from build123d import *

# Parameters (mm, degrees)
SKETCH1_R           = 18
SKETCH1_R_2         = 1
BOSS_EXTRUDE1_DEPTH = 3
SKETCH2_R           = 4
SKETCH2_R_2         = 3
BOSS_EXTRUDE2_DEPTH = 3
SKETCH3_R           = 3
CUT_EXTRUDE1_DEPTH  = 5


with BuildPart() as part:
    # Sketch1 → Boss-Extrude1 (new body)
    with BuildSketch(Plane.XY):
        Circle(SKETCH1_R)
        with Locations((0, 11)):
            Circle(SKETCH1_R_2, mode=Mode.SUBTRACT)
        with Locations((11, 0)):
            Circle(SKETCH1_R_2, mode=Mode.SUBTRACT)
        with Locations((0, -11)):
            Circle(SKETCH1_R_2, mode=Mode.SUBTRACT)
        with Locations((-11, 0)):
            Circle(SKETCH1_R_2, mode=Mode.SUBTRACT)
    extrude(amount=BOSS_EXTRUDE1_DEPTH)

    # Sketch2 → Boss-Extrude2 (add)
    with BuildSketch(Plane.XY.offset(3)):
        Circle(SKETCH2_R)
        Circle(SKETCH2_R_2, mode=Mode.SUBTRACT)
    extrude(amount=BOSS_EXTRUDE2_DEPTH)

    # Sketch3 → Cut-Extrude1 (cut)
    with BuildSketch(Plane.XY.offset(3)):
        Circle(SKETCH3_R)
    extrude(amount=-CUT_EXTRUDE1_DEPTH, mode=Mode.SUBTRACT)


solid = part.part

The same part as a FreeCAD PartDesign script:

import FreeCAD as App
import Part
import Sketcher
from FreeCAD import Vector
Q = App.Units.Quantity

doc = App.newDocument("Part")
body = doc.addObject("PartDesign::Body", "Body")

sketch1 = body.newObject("Sketcher::SketchObject", "Sketch")
sketch1.AttachmentSupport = (doc.getObject("XY_Plane"), [""])
sketch1.MapMode = "FlatFace"
sketch1.addGeometry([
    Part.Circle(Vector(0, 0, 0), Vector(0, 0, 1), 18),
    Part.Circle(Vector(0, -11, 0), Vector(0, 0, 1), 1),
    Part.Circle(Vector(-11, 0, 0), Vector(0, 0, 1), 1),
    Part.Circle(Vector(11, 0, 0), Vector(0, 0, 1), 1),
    Part.Circle(Vector(0, 11, 0), Vector(0, 0, 1), 1),
], False)
sketch1.addConstraint([
    Sketcher.Constraint("Coincident", 0, 3, -1, 1),
    Sketcher.Constraint("Equal", 1, 2),
    Sketcher.Constraint("Equal", 2, 3),
    Sketcher.Constraint("Equal", 3, 4),
    Sketcher.Constraint("Symmetric", 2, 3, 3, 3, -1, 1),
    Sketcher.Constraint("Symmetric", 1, 3, 4, 3, -1, 1),
    Sketcher.Constraint("PointOnObject", 1, 3, -2),
    Sketcher.Constraint("PointOnObject", 2, 3, -1),
    Sketcher.Constraint("Diameter", 0, Q("36 mm")),
    Sketcher.Constraint("Diameter", 1, Q("2 mm")),
    Sketcher.Constraint("DistanceY", 1, 3, -1, 1, Q("11 mm")),
    Sketcher.Constraint("DistanceX", 2, 3, -1, 1, Q("11 mm")),
])
pad1 = body.newObject("PartDesign::Pad", "Pad")
pad1.Profile = sketch1
pad1.Length = 3

sketch2 = body.newObject("Sketcher::SketchObject", "Sketch001")
sketch2.AttachmentSupport = (doc.getObject("XY_Plane"), [""])
sketch2.MapMode = "FlatFace"
sketch2.AttachmentOffset = App.Placement(Vector(0, 0, 3), App.Rotation())
sketch2.addGeometry([
    Part.Circle(Vector(0, 0, 0), Vector(0, 0, 1), 4),
    Part.Circle(Vector(0, 0, 0), Vector(0, 0, 1), 3),
], False)
sketch2.addConstraint([
    Sketcher.Constraint("Coincident", 0, 3, -1, 1),
    Sketcher.Constraint("Coincident", 1, 3, -1, 1),
    Sketcher.Constraint("Diameter", 0, Q("8 mm")),
    Sketcher.Constraint("Diameter", 1, Q("6 mm")),
])
pad2 = body.newObject("PartDesign::Pad", "Pad001")
pad2.Profile = sketch2
pad2.Length = 3

sketch3 = body.newObject("Sketcher::SketchObject", "Sketch002")
sketch3.AttachmentSupport = (doc.getObject("XY_Plane"), [""])
sketch3.MapMode = "FlatFace"
sketch3.AttachmentOffset = App.Placement(Vector(0, 0, 3), App.Rotation())
sketch3.addGeometry(Part.Circle(Vector(0, 0, 0), Vector(0, 0, 1), 3), False)
sketch3.addConstraint([
    Sketcher.Constraint("Coincident", 0, 3, -1, 1),
    Sketcher.Constraint("Diameter", 0, Q("6 mm")),
])
pocket1 = body.newObject("PartDesign::Pocket", "Pocket")
pocket1.Profile = sketch3
pocket1.Length = 5

doc.recompute()
